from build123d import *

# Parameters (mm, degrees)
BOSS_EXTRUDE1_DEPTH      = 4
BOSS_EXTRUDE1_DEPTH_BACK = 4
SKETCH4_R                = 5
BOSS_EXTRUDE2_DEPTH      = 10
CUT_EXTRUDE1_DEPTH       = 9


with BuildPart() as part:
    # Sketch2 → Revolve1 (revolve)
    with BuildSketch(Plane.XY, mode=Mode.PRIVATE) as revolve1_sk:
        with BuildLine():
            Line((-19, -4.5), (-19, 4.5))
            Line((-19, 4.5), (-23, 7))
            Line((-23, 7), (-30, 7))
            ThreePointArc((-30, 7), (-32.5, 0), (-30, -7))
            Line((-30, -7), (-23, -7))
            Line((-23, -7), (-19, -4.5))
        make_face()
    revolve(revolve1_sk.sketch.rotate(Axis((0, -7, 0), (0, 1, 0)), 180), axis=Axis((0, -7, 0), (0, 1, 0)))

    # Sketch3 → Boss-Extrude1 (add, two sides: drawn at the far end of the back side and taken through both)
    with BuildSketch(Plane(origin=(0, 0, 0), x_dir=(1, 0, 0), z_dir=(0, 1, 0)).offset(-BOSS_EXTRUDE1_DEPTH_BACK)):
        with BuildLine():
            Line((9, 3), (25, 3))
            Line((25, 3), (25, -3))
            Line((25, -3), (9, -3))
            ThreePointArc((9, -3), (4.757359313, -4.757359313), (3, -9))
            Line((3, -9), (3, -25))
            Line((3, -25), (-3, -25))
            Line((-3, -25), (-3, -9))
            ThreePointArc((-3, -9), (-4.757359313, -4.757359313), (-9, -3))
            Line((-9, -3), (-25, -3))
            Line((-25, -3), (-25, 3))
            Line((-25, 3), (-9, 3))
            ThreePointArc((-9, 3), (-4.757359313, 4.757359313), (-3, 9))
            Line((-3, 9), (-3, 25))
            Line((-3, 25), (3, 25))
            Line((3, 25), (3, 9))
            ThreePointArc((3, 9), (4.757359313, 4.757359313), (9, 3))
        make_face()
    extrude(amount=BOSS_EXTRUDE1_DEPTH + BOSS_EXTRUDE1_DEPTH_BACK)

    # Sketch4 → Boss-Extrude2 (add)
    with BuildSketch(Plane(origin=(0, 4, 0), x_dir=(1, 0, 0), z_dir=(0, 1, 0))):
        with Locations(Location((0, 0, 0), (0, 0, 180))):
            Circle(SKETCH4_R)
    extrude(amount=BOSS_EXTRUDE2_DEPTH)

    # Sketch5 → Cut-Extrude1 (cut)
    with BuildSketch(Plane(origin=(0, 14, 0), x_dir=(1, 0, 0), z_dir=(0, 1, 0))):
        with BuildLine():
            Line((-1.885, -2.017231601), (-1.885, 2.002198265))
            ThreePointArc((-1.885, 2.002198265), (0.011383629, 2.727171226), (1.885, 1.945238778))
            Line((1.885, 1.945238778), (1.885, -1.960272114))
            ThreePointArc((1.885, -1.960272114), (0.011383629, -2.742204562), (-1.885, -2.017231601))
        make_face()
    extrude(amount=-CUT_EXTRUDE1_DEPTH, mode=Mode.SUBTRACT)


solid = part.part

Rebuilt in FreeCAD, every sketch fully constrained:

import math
import FreeCAD as App
import Part
import Sketcher
from FreeCAD import Vector

doc = App.newDocument("Part")
body = doc.addObject("PartDesign::Body", "Body")

# Sketch on XY plane
sketch1 = body.newObject("Sketcher::SketchObject", "Sketch")
sketch1.AttachmentSupport = (doc.getObject("XY_Plane"), [""])
sketch1.MapMode = "FlatFace"
sketch1.addGeometry(Part.LineSegment(Vector(-19, -4.5, 0), Vector(-19, 4.5, 0)), False)
sketch1.addGeometry(Part.LineSegment(Vector(-19, 4.5, 0), Vector(-23, 7, 0)), False)
sketch1.addGeometry(Part.LineSegment(Vector(-23, 7, 0), Vector(-30, 7, 0)), False)
sketch1.addGeometry(Part.ArcOfCircle(Part.Circle(Vector(-21.45, 0, 0), Vector(0, 0, 1), 11.05), math.radians(140.692352), math.radians(219.307648)), False)
sketch1.addGeometry(Part.LineSegment(Vector(-30, -7, 0), Vector(-23, -7, 0)), False)
sketch1.addGeometry(Part.LineSegment(Vector(-23, -7, 0), Vector(-19, -4.5, 0)), False)
sketch1.addConstraint(Sketcher.Constraint("Coincident", 0, 2, 1, 1))
sketch1.addConstraint(Sketcher.Constraint("Coincident", 1, 2, 2, 1))
sketch1.addConstraint(Sketcher.Constraint("Coincident", 2, 2, 3, 1))
sketch1.addConstraint(Sketcher.Constraint("Coincident", 3, 2, 4, 1))
sketch1.addConstraint(Sketcher.Constraint("Coincident", 4, 2, 5, 1))
sketch1.addConstraint(Sketcher.Constraint("Coincident", 5, 2, 0, 1))
sketch1.addConstraint(Sketcher.Constraint("Vertical", 0))
sketch1.addConstraint(Sketcher.Constraint("Horizontal", 2))
sketch1.addConstraint(Sketcher.Constraint("Horizontal", 4))
sketch1.addConstraint(Sketcher.Constraint("Symmetric", 2, 2, 3, 2, -1))
sketch1.addConstraint(Sketcher.Constraint("Vertical", 1, 2, 4, 2))
sketch1.addConstraint(Sketcher.Constraint("Equal", 1, 5))
sketch1.addConstraint(Sketcher.Constraint("DistanceX", 2, 2, 2, 1, 7.0))
sketch1.addConstraint(Sketcher.Constraint("DistanceY", 0, 1, 0, 2, 9.0))
sketch1.addConstraint(Sketcher.Constraint("Radius", 3, 11.05))
sketch1.addConstraint(Sketcher.Constraint("DistanceX", 0, 2, -1, 1, 19.0))
sketch1.addConstraint(Sketcher.Constraint("DistanceX", 1, 2, -1, 1, 23.0))
sketch1.addConstraint(Sketcher.Constraint("DistanceY", -1, 1, 1, 2, 7.0))
revolution = body.newObject("PartDesign::Revolution", "Revolution")
revolution.Profile = sketch1
revolution.ReferenceAxis = (sketch1, ["V_Axis"])
revolution.Angle = 360

# Sketch on XZ plane
sketch2 = body.newObject("Sketcher::SketchObject", "Sketch001")
sketch2.AttachmentSupport = (doc.getObject("XZ_Plane"), [""])
sketch2.MapMode = "FlatFace"
sketch2.addGeometry(Part.LineSegment(Vector(25, -3, 0), Vector(9, -3, 0)), False)
sketch2.addGeometry(Part.ArcOfCircle(Part.Circle(Vector(9, -9, 0), Vector(0, 0, 1), 6), math.radians(90), math.radians(180)), False)
sketch2.addGeometry(Part.LineSegment(Vector(3, -9, 0), Vector(3, -25, 0)), False)
sketch2.addGeometry(Part.LineSegment(Vector(3, -25, 0), Vector(-3, -25, 0)), False)
sketch2.addGeometry(Part.LineSegment(Vector(-3, -25, 0), Vector(-3, -9, 0)), False)
sketch2.addGeometry(Part.ArcOfCircle(Part.Circle(Vector(-9, -9, 0), Vector(0, 0, 1), 6), math.radians(0), math.radians(90)), False)
sketch2.addGeometry(Part.LineSegment(Vector(-9, -3, 0), Vector(-25, -3, 0)), False)
sketch2.addGeometry(Part.LineSegment(Vector(-25, -3, 0), Vector(-25, 3, 0)), False)
sketch2.addGeometry(Part.LineSegment(Vector(-25, 3, 0), Vector(-9, 3, 0)), False)
sketch2.addGeometry(Part.ArcOfCircle(Part.Circle(Vector(-9, 9, 0), Vector(0, 0, 1), 6), math.radians(-90), math.radians(0)), False)
sketch2.addGeometry(Part.LineSegment(Vector(-3, 9, 0), Vector(-3, 25, 0)), False)
sketch2.addGeometry(Part.LineSegment(Vector(-3, 25, 0), Vector(3, 25, 0)), False)
sketch2.addGeometry(Part.LineSegment(Vector(3, 25, 0), Vector(3, 9, 0)), False)
sketch2.addGeometry(Part.ArcOfCircle(Part.Circle(Vector(9, 9, 0), Vector(0, 0, 1), 6), math.radians(180), math.radians(270)), False)
sketch2.addGeometry(Part.LineSegment(Vector(9, 3, 0), Vector(25, 3, 0)), False)
sketch2.addGeometry(Part.LineSegment(Vector(25, 3, 0), Vector(25, -3, 0)), False)
sketch2.addConstraint(Sketcher.Constraint("Tangent", 0, 2, 1, 1))
sketch2.addConstraint(Sketcher.Constraint("Tangent", 1, 2, 2, 1))
sketch2.addConstraint(Sketcher.Constraint("Coincident", 2, 2, 3, 1))
sketch2.addConstraint(Sketcher.Constraint("Coincident", 3, 2, 4, 1))
sketch2.addConstraint(Sketcher.Constraint("Tangent", 4, 2, 5, 1))
sketch2.addConstraint(Sketcher.Constraint("Tangent", 5, 2, 6, 1))
sketch2.addConstraint(Sketcher.Constraint("Coincident", 6, 2, 7, 1))
sketch2.addConstraint(Sketcher.Constraint("Coincident", 7, 2, 8, 1))
sketch2.addConstraint(Sketcher.Constraint("Tangent", 8, 2, 9, 1))
sketch2.addConstraint(Sketcher.Constraint("Tangent", 9, 2, 10, 1))
sketch2.addConstraint(Sketcher.Constraint("Coincident", 10, 2, 11, 1))
sketch2.addConstraint(Sketcher.Constraint("Coincident", 11, 2, 12, 1))
sketch2.addConstraint(Sketcher.Constraint("Tangent", 12, 2, 13, 1))
sketch2.addConstraint(Sketcher.Constraint("Tangent", 13, 2, 14, 1))
sketch2.addConstraint(Sketcher.Constraint("Coincident", 14, 2, 15, 1))
sketch2.addConstraint(Sketcher.Constraint("Coincident", 15, 2, 0, 1))
sketch2.addConstraint(Sketcher.Constraint("Horizontal", 0))
sketch2.addConstraint(Sketcher.Constraint("Vertical", 2))
sketch2.addConstraint(Sketcher.Constraint("Horizontal", 3))
sketch2.addConstraint(Sketcher.Constraint("Vertical", 4))
sketch2.addConstraint(Sketcher.Constraint("Horizontal", 6))
sketch2.addConstraint(Sketcher.Constraint("Vertical", 7))
sketch2.addConstraint(Sketcher.Constraint("Horizontal", 8))
sketch2.addConstraint(Sketcher.Constraint("Vertical", 10))
sketch2.addConstraint(Sketcher.Constraint("Horizontal", 11))
sketch2.addConstraint(Sketcher.Constraint("Vertical", 12))
sketch2.addConstraint(Sketcher.Constraint("Horizontal", 14))
sketch2.addConstraint(Sketcher.Constraint("Vertical", 15))
sketch2.addConstraint(Sketcher.Constraint("Equal", 1, 5))
sketch2.addConstraint(Sketcher.Constraint("Equal", 5, 9))
sketch2.addConstraint(Sketcher.Constraint("Equal", 9, 13))
sketch2.addConstraint(Sketcher.Constraint("Symmetric", 1, 3, 9, 3, -1, 1))
sketch2.addConstraint(Sketcher.Constraint("Symmetric", 5, 3, 13, 3, -1, 1))
sketch2.addConstraint(Sketcher.Constraint("Symmetric", 1, 3, 5, 3, -2))
sketch2.addConstraint(Sketcher.Constraint("Equal", 0, 6))
sketch2.addConstraint(Sketcher.Constraint("Equal", 14, 2))
sketch2.addConstraint(Sketcher.Constraint("Equal", 11, 7))
sketch2.addConstraint(Sketcher.Constraint("Equal", 4, 10))
sketch2.addConstraint(Sketcher.Constraint("Radius", 1, 6.0))
sketch2.addConstraint(Sketcher.Constraint("DistanceX", 0, 2, 0, 1, 16.0))
sketch2.addConstraint(Sketcher.Constraint("DistanceX", 3, 2, 3, 1, 6.0))
pad1 = body.newObject("PartDesign::Pad", "Pad")
pad1.Profile = sketch2
pad1.Type = "TwoLengths"
pad1.Length = 4
pad1.Length2 = 4
pad1.Reversed = True

# Sketch on XZ plane
sketch3 = body.newObject("Sketcher::SketchObject", "Sketch002")
sketch3.AttachmentSupport = (doc.getObject("XZ_Plane"), [""])
sketch3.MapMode = "FlatFace"
sketch3.AttachmentOffset = App.Placement(Vector(0, 0, -4), App.Rotation())
sketch3.addGeometry(Part.Circle(Vector(0, 0, 0), Vector(0, 0, 1), 5), False)
sketch3.addConstraint(Sketcher.Constraint("Coincident", 0, 3, -1, 1))
sketch3.addConstraint(Sketcher.Constraint("Diameter", 0, 10.0))
pad2 = body.newObject("PartDesign::Pad", "Pad001")
pad2.Profile = sketch3
pad2.Length = 10
pad2.Reversed = True

# Sketch on XZ plane
sketch4 = body.newObject("Sketcher::SketchObject", "Sketch003")
sketch4.AttachmentSupport = (doc.getObject("XZ_Plane"), [""])
sketch4.MapMode = "FlatFace"
sketch4.AttachmentOffset = App.Placement(Vector(0, 0, -14), App.Rotation())
sketch4.addGeometry(Part.LineSegment(Vector(-1.885, -2.002198, 0), Vector(-1.885, 2.017232, 0)), False)
sketch4.addGeometry(Part.ArcOfCircle(Part.Circle(Vector(-0.029934, 0.007517, 0), Vector(0, 0, 1), 2.735), math.radians(45.560271), math.radians(132.70854)), False)
sketch4.addGeometry(Part.LineSegment(Vector(1.885, 1.960272, 0), Vector(1.885, -1.945239, 0)), False)
sketch4.addGeometry(Part.ArcOfCircle(Part.Circle(Vector(-0.029934, 0.007517, 0), Vector(0, 0, 1), 2.735), math.radians(-132.70854), math.radians(-45.560271)), False)
sketch4.addConstraint(Sketcher.Constraint("Coincident", 0, 2, 1, 2))
sketch4.addConstraint(Sketcher.Constraint("Coincident", 1, 1, 2, 1))
sketch4.addConstraint(Sketcher.Constraint("Coincident", 2, 2, 3, 2))
sketch4.addConstraint(Sketcher.Constraint("Coincident", 3, 1, 0, 1))
sketch4.addConstraint(Sketcher.Constraint("Vertical", 0))
sketch4.addConstraint(Sketcher.Constraint("Vertical", 2))
sketch4.addConstraint(Sketcher.Constraint("Coincident", 3, 3, 1, 3))
sketch4.addConstraint(Sketcher.Constraint("Equal", 1, 3))
sketch4.addConstraint(Sketcher.Constraint("Radius", 1, 2.735))
sketch4.addConstraint(Sketcher.Constraint("DistanceX", 0, 2, 1, 1, 3.77))
sketch4.addConstraint(Sketcher.Constraint("DistanceX", 0, 2, -1, 1, 1.885))
sketch4.addConstraint(Sketcher.Constraint("DistanceY", 0, 1, 0, 2, 4.01943))
sketch4.addConstraint(Sketcher.Constraint("DistanceY", 3, 1, -1, 1, 2.002198))
pocket1 = body.newObject("PartDesign::Pocket", "Pocket")
pocket1.Profile = sketch4
pocket1.Length = 9
pocket1.Reversed = True

doc.recompute()
